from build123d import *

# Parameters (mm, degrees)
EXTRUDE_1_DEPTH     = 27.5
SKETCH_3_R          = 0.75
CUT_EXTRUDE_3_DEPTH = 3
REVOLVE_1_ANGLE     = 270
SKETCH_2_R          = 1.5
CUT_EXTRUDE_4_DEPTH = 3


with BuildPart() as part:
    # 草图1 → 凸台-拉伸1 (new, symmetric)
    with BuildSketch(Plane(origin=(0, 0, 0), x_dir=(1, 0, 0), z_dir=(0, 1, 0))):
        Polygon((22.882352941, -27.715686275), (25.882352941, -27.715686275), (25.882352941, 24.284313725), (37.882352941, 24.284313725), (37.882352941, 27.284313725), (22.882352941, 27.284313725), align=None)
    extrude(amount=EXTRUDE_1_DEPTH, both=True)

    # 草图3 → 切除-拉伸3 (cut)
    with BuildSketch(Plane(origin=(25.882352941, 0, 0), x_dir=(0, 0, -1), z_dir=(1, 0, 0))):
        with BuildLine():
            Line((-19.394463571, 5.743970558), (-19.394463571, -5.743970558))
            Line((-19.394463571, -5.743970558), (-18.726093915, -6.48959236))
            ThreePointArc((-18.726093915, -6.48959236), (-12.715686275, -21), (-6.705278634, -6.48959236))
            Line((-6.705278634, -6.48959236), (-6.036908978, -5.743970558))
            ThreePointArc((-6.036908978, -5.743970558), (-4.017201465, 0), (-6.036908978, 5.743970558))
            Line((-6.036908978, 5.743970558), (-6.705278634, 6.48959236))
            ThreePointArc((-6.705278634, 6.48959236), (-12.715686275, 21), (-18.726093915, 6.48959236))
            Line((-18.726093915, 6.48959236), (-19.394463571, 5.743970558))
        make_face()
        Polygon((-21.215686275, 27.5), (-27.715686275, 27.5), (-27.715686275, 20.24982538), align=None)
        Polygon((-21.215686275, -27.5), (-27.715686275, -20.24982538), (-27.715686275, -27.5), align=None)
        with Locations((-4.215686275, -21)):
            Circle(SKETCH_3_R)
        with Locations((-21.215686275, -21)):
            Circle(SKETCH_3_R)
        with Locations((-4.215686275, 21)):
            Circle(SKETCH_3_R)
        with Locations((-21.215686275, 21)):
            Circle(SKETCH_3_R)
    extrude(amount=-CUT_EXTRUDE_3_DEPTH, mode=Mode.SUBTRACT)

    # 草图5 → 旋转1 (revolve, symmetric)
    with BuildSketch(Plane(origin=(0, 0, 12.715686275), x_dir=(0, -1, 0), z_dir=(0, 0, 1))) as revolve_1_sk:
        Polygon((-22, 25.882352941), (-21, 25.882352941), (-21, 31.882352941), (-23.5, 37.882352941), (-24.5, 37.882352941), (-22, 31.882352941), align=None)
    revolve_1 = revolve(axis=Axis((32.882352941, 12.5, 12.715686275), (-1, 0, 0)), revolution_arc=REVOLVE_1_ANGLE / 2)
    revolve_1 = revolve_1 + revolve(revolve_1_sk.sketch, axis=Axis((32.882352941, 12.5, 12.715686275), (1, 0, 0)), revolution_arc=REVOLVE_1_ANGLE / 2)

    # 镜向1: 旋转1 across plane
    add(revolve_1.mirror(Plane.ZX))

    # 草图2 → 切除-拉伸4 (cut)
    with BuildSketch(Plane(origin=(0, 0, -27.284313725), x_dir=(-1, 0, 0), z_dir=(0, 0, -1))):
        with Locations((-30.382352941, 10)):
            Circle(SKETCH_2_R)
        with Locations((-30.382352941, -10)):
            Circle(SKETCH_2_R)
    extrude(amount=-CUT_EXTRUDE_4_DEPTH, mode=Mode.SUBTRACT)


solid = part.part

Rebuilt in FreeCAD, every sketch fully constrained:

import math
import FreeCAD as App
import Part
import Sketcher
from FreeCAD import Vector

doc = App.newDocument("Part")
body = doc.addObject("PartDesign::Body", "Body")

# Sketch on XZ plane
sketch1 = doc.addObject("Sketcher::SketchObject", "Sketch")
body.addObject(sketch1)
sketch1.AttachmentSupport = (doc.XZ_Plane, [""])
sketch1.MapMode = "FlatFace"
sketch1.addGeometry(Part.LineSegment(Vector(22.882353, 27.715686, 0), Vector(25.882353, 27.715686, 0)), False)
sketch1.addGeometry(Part.LineSegment(Vector(25.882353, 27.715686, 0), Vector(25.882353, -24.284314, 0)), False)
sketch1.addGeometry(Part.LineSegment(Vector(25.882353, -24.284314, 0), Vector(37.882353, -24.284314, 0)), False)
sketch1.addGeometry(Part.LineSegment(Vector(37.882353, -24.284314, 0), Vector(37.882353, -27.284314, 0)), False)
sketch1.addGeometry(Part.LineSegment(Vector(37.882353, -27.284314, 0), Vector(22.882353, -27.284314, 0)), False)
sketch1.addGeometry(Part.LineSegment(Vector(22.882353, -27.284314, 0), Vector(22.882353, 27.715686, 0)), False)
sketch1.addConstraint(Sketcher.Constraint("Coincident", 0, 2, 1, 1))
sketch1.addConstraint(Sketcher.Constraint("Coincident", 1, 2, 2, 1))
sketch1.addConstraint(Sketcher.Constraint("Coincident", 2, 2, 3, 1))
sketch1.addConstraint(Sketcher.Constraint("Coincident", 3, 2, 4, 1))
sketch1.addConstraint(Sketcher.Constraint("Coincident", 4, 2, 5, 1))
sketch1.addConstraint(Sketcher.Constraint("Coincident", 5, 2, 0, 1))
sketch1.addConstraint(Sketcher.Constraint("Horizontal", 0))
sketch1.addConstraint(Sketcher.Constraint("Vertical", 1))
sketch1.addConstraint(Sketcher.Constraint("Horizontal", 2))
sketch1.addConstraint(Sketcher.Constraint("Vertical", 3))
sketch1.addConstraint(Sketcher.Constraint("Horizontal", 4))
sketch1.addConstraint(Sketcher.Constraint("Vertical", 5))
sketch1.addConstraint(Sketcher.Constraint("Equal", 0, 3))
sketch1.addConstraint(Sketcher.Constraint("DistanceX", 0, 1, 0, 2, 3.0))
sketch1.addConstraint(Sketcher.Constraint("DistanceX", 2, 1, 2, 2, 12.0))
sketch1.addConstraint(Sketcher.Constraint("DistanceY", 1, 2, 1, 1, 52.0))
sketch1.addConstraint(Sketcher.Constraint("DistanceX", -1, 1, 0, 2, 25.882353))
sketch1.addConstraint(Sketcher.Constraint("DistanceY", -1, 1, 0, 2, 27.715686))
pad1 = doc.addObject("PartDesign::Pad", "Pad")
body.addObject(pad1)
pad1.Profile = sketch1
pad1.Length = 55
pad1.Midplane = True

# Sketch on YZ plane
sketch2 = doc.addObject("Sketcher::SketchObject", "Sketch001")
body.addObject(sketch2)
sketch2.AttachmentSupport = (doc.YZ_Plane, [""])
sketch2.MapMode = "FlatFace"
sketch2.AttachmentOffset = App.Placement(Vector(0, 0, 25.882353), App.Rotation())
sketch2.addGeometry(Part.LineSegment(Vector(5.743971, 19.394464, 0), Vector(-5.743971, 19.394464, 0)), False)
sketch2.addGeometry(Part.LineSegment(Vector(-5.743971, 19.394464, 0), Vector(-6.489592, 18.726094, 0)), False)
sketch2.addGeometry(Part.ArcOfCircle(Part.Circle(Vector(-12.5, 12.715686, 0), Vector(0, 0, 1), 8.5), math.radians(45), math.radians(315)), False)
sketch2.addGeometry(Part.LineSegment(Vector(-6.489592, 6.705279, 0), Vector(-5.743971, 6.036909, 0)), False)
sketch2.addGeometry(Part.ArcOfCircle(Part.Circle(Vector(0, 13.194871, 0), Vector(0, 0, 1), 9.17767), math.radians(-128.745612), math.radians(-51.254388)), False)
sketch2.addGeometry(Part.LineSegment(Vector(5.743971, 6.036909, 0), Vector(6.489592, 6.705279, 0)), False)
sketch2.addGeometry(Part.ArcOfCircle(Part.Circle(Vector(12.5, 12.715686, 0), Vector(0, 0, 1), 8.5), math.radians(-135), math.radians(135)), False)
sketch2.addGeometry(Part.LineSegment(Vector(6.489592, 18.726094, 0), Vector(5.743971, 19.394464, 0)), False)
sketch2.addGeometry(Part.LineSegment(Vector(27.5, 21.215686, 0), Vector(27.5, 27.715686, 0)), False)
sketch2.addGeometry(Part.LineSegment(Vector(27.5, 27.715686, 0), Vector(20.249825, 27.715686, 0)), False)
sketch2.addGeometry(Part.LineSegment(Vector(20.249825, 27.715686, 0), Vector(27.5, 21.215686, 0)), False)
sketch2.addGeometry(Part.LineSegment(Vector(-27.5, 21.215686, 0), Vector(-20.249825, 27.715686, 0)), False)
sketch2.addGeometry(Part.LineSegment(Vector(-20.249825, 27.715686, 0), Vector(-27.5, 27.715686, 0)), False)
sketch2.addGeometry(Part.LineSegment(Vector(-27.5, 27.715686, 0), Vector(-27.5, 21.215686, 0)), False)
sketch2.addGeometry(Part.Circle(Vector(-21, 4.215686, 0), Vector(0, 0, 1), 0.75), False)
sketch2.addGeometry(Part.Circle(Vector(-21, 21.215686, 0), Vector(0, 0, 1), 0.75), False)
sketch2.addGeometry(Part.Circle(Vector(21, 4.215686, 0), Vector(0, 0, 1), 0.75), False)
sketch2.addGeometry(Part.Circle(Vector(21, 21.215686, 0), Vector(0, 0, 1), 0.75), False)
sketch2.addConstraint(Sketcher.Constraint("Coincident", 0, 2, 1, 1))
sketch2.addConstraint(Sketcher.Constraint("Coincident", 1, 2, 2, 1))
sketch2.addConstraint(Sketcher.Constraint("Coincident", 2, 2, 3, 1))
sketch2.addConstraint(Sketcher.Constraint("Coincident", 3, 2, 4, 1))
sketch2.addConstraint(Sketcher.Constraint("Coincident", 4, 2, 5, 1))
sketch2.addConstraint(Sketcher.Constraint("Coincident", 5, 2, 6, 1))
sketch2.addConstraint(Sketcher.Constraint("Coincident", 6, 2, 7, 1))
sketch2.addConstraint(Sketcher.Constraint("Coincident", 7, 2, 0, 1))
sketch2.addConstraint(Sketcher.Constraint("Coincident", 8, 2, 9, 1))
sketch2.addConstraint(Sketcher.Constraint("Coincident", 9, 2, 10, 1))
sketch2.addConstraint(Sketcher.Constraint("Coincident", 10, 2, 8, 1))
sketch2.addConstraint(Sketcher.Constraint("Coincident", 11, 2, 12, 1))
sketch2.addConstraint(Sketcher.Constraint("Coincident", 12, 2, 13, 1))
sketch2.addConstraint(Sketcher.Constraint("Coincident", 13, 2, 11, 1))
sketch2.addConstraint(Sketcher.Constraint("Horizontal", 0))
sketch2.addConstraint(Sketcher.Constraint("Vertical", 8))
sketch2.addConstraint(Sketcher.Constraint("Horizontal", 9))
sketch2.addConstraint(Sketcher.Constraint("Horizontal", 12))
sketch2.addConstraint(Sketcher.Constraint("Vertical", 13))
sketch2.addConstraint(Sketcher.Constraint("Equal", 2, 6))
sketch2.addConstraint(Sketcher.Constraint("Equal", 14, 15))
sketch2.addConstraint(Sketcher.Constraint("Equal", 15, 16))
sketch2.addConstraint(Sketcher.Constraint("Equal", 16, 17))
sketch2.addConstraint(Sketcher.Constraint("Symmetric", 2, 3, 6, 3, -2))
sketch2.addConstraint(Sketcher.Constraint("Symmetric", 14, 3, 16, 3, -2))
sketch2.addConstraint(Sketcher.Constraint("Symmetric", 15, 3, 17, 3, -2))
sketch2.addConstraint(Sketcher.Constraint("Symmetric", 3, 2, 4, 2, -2))
sketch2.addConstraint(Sketcher.Constraint("Symmetric", 9, 2, 11, 2, -2))
sketch2.addConstraint(Sketcher.Constraint("Symmetric", 10, 2, 13, 2, -2))
sketch2.addConstraint(Sketcher.Constraint("Parallel", 1, 5))
sketch2.addConstraint(Sketcher.Constraint("Parallel", 3, 7))
sketch2.addConstraint(Sketcher.Constraint("Horizontal", 2, 2, 5, 2))
sketch2.addConstraint(Sketcher.Constraint("Horizontal", 1, 2, 6, 2))
sketch2.addConstraint(Sketcher.Constraint("Horizontal", 17, 3, 10, 2))
sketch2.addConstraint(Sketcher.Constraint("Vertical", 14, 3, 15, 3))
sketch2.addConstraint(Sketcher.Constraint("Vertical", 1, 2, 2, 2))
sketch2.addConstraint(Sketcher.Constraint("Vertical", 0, 2, 3, 2))
sketch2.addConstraint(Sketcher.Constraint("Diameter", 14, 1.5))
sketch2.addConstraint(Sketcher.Constraint("Radius", 2, 8.5))
sketch2.addConstraint(Sketcher.Constraint("DistanceY", 8, 1, 8, 2, 6.5))
sketch2.addConstraint(Sketcher.Constraint("DistanceX", 14, 3, -1, 1, 21.0))
sketch2.addConstraint(Sketcher.Constraint("DistanceX", 2, 3, 6, 3, 25.0))
sketch2.addConstraint(Sketcher.Constraint("DistanceY", 14, 3, 15, 3, 17.0))
sketch2.addConstraint(Sketcher.Constraint("DistanceX", 6, 3, 8, 2, 15.0))
sketch2.addConstraint(Sketcher.Constraint("DistanceY", 6, 3, 8, 2, 15.0))
sketch2.addConstraint(Sketcher.Constraint("Radius", 4, 9.17767))
sketch2.addConstraint(Sketcher.Constraint("Distance", 10, 9.737301))
sketch2.addConstraint(Sketcher.Constraint("DistanceX", 0, 2, 0, 1, 11.487941))
sketch2.addConstraint(Sketcher.Constraint("DistanceY", -1, 1, 4, 3, 13.194871))
sketch2.addConstraint(Sketcher.Constraint("DistanceY", -1, 1, 2, 2, 6.705279))
sketch2.addConstraint(Sketcher.Constraint("DistanceX", 1, 2, 0, 2, 0.745622))
pocket1 = doc.addObject("PartDesign::Pocket", "Pocket")
body.addObject(pocket1)
pocket1.Profile = sketch2
pocket1.Length = 3

# Sketch on XY plane
sketch3 = doc.addObject("Sketcher::SketchObject", "Sketch002")
body.addObject(sketch3)
sketch3.AttachmentSupport = (doc.XY_Plane, [""])
sketch3.MapMode = "FlatFace"
sketch3.AttachmentOffset = App.Placement(Vector(0, 0, 12.715686), App.Rotation())
sketch3.addGeometry(Part.LineSegment(Vector(25.882353, 22, 0), Vector(25.882353, 21, 0)), False)
sketch3.addGeometry(Part.LineSegment(Vector(25.882353, 21, 0), Vector(31.882353, 21, 0)), False)
sketch3.addGeometry(Part.LineSegment(Vector(31.882353, 21, 0), Vector(37.882353, 23.5, 0)), False)
sketch3.addGeometry(Part.LineSegment(Vector(37.882353, 23.5, 0), Vector(37.882353, 24.5, 0)), False)
sketch3.addGeometry(Part.LineSegment(Vector(37.882353, 24.5, 0), Vector(31.882353, 22, 0)), False)
sketch3.addGeometry(Part.LineSegment(Vector(31.882353, 22, 0), Vector(25.882353, 22, 0)), False)
sketch3.addGeometry(Part.LineSegment(Vector(37.882353, 12.5, 0), Vector(25.882353, 12.5, 0)), True)  # axis
sketch3.addConstraint(Sketcher.Constraint("Coincident", 0, 2, 1, 1))
sketch3.addConstraint(Sketcher.Constraint("Coincident", 1, 2, 2, 1))
sketch3.addConstraint(Sketcher.Constraint("Coincident", 2, 2, 3, 1))
sketch3.addConstraint(Sketcher.Constraint("Coincident", 3, 2, 4, 1))
sketch3.addConstraint(Sketcher.Constraint("Coincident", 4, 2, 5, 1))
sketch3.addConstraint(Sketcher.Constraint("Coincident", 5, 2, 0, 1))
sketch3.addConstraint(Sketcher.Constraint("Vertical", 0))
sketch3.addConstraint(Sketcher.Constraint("Horizontal", 1))
sketch3.addConstraint(Sketcher.Constraint("Vertical", 3))
sketch3.addConstraint(Sketcher.Constraint("Horizontal", 5))
sketch3.addConstraint(Sketcher.Constraint("Horizontal", 6))
sketch3.addConstraint(Sketcher.Constraint("Parallel", 2, 4))
sketch3.addConstraint(Sketcher.Constraint("Vertical", 1, 2, 4, 2))
sketch3.addConstraint(Sketcher.Constraint("Vertical", 3, 2, 6, 1))
sketch3.addConstraint(Sketcher.Constraint("Vertical", 5, 2, 6, 2))
sketch3.addConstraint(Sketcher.Constraint("DistanceX", 1, 1, 1, 2, 6.0))
sketch3.addConstraint(Sketcher.Constraint("DistanceX", 6, 2, 6, 1, 12.0))
sketch3.addConstraint(Sketcher.Constraint("DistanceY", 0, 2, 0, 1, 1.0))
sketch3.addConstraint(Sketcher.Constraint("DistanceY", -1, 1, 0, 2, 21.0))
sketch3.addConstraint(Sketcher.Constraint("DistanceY", 6, 1, 2, 2, 11.0))
sketch3.addConstraint(Sketcher.Constraint("Distance", 2, 6.5))
sketch3.addConstraint(Sketcher.Constraint("DistanceX", -1, 1, 0, 2, 25.882353))
revolution = doc.addObject("PartDesign::Revolution", "Revolution")
body.addObject(revolution)
revolution.Profile = sketch3
revolution.ReferenceAxis = (sketch3, ["Axis0"])
revolution.Angle = 135

# Sketch on XY plane
sketch4 = doc.addObject("Sketcher::SketchObject", "Sketch003")
body.addObject(sketch4)
sketch4.AttachmentSupport = (doc.XY_Plane, [""])
sketch4.MapMode = "FlatFace"
sketch4.AttachmentOffset = App.Placement(Vector(0, 0, 12.715686), App.Rotation())
sketch4.addGeometry(Part.LineSegment(Vector(25.882353, 22, 0), Vector(25.882353, 21, 0)), False)
sketch4.addGeometry(Part.LineSegment(Vector(25.882353, 21, 0), Vector(31.882353, 21, 0)), False)
sketch4.addGeometry(Part.LineSegment(Vector(31.882353, 21, 0), Vector(37.882353, 23.5, 0)), False)
sketch4.addGeometry(Part.LineSegment(Vector(37.882353, 23.5, 0), Vector(37.882353, 24.5, 0)), False)
sketch4.addGeometry(Part.LineSegment(Vector(37.882353, 24.5, 0), Vector(31.882353, 22, 0)), False)
sketch4.addGeometry(Part.LineSegment(Vector(31.882353, 22, 0), Vector(25.882353, 22, 0)), False)
sketch4.addGeometry(Part.LineSegment(Vector(25.882353, 12.5, 0), Vector(37.882353, 12.5, 0)), True)  # axis
sketch4.addConstraint(Sketcher.Constraint("Coincident", 0, 2, 1, 1))
sketch4.addConstraint(Sketcher.Constraint("Coincident", 1, 2, 2, 1))
sketch4.addConstraint(Sketcher.Constraint("Coincident", 2, 2, 3, 1))
sketch4.addConstraint(Sketcher.Constraint("Coincident", 3, 2, 4, 1))
sketch4.addConstraint(Sketcher.Constraint("Coincident", 4, 2, 5, 1))
sketch4.addConstraint(Sketcher.Constraint("Coincident", 5, 2, 0, 1))
sketch4.addConstraint(Sketcher.Constraint("Vertical", 0))
sketch4.addConstraint(Sketcher.Constraint("Horizontal", 1))
sketch4.addConstraint(Sketcher.Constraint("Vertical", 3))
sketch4.addConstraint(Sketcher.Constraint("Horizontal", 5))
sketch4.addConstraint(Sketcher.Constraint("Horizontal", 6))
sketch4.addConstraint(Sketcher.Constraint("Parallel", 2, 4))
sketch4.addConstraint(Sketcher.Constraint("Vertical", 1, 2, 4, 2))
sketch4.addConstraint(Sketcher.Constraint("Vertical", 5, 2, 6, 1))
sketch4.addConstraint(Sketcher.Constraint("Vertical", 3, 2, 6, 2))
sketch4.addConstraint(Sketcher.Constraint("DistanceX", 1, 1, 1, 2, 6.0))
sketch4.addConstraint(Sketcher.Constraint("DistanceX", 6, 1, 6, 2, 12.0))
sketch4.addConstraint(Sketcher.Constraint("DistanceY", 0, 2, 0, 1, 1.0))
sketch4.addConstraint(Sketcher.Constraint("DistanceY", -1, 1, 0, 2, 21.0))
sketch4.addConstraint(Sketcher.Constraint("DistanceY", 6, 1, 2, 2, 11.0))
sketch4.addConstraint(Sketcher.Constraint("Distance", 2, 6.5))
sketch4.addConstraint(Sketcher.Constraint("DistanceX", -1, 1, 0, 2, 25.882353))
revolution2 = doc.addObject("PartDesign::Revolution", "Revolution001")
body.addObject(revolution2)
revolution2.Profile = sketch4
revolution2.ReferenceAxis = (sketch4, ["Axis0"])
revolution2.Angle = 135
doc.recompute()

mirrored = doc.addObject("PartDesign::Mirrored", "Mirrored")
body.addObject(mirrored)
mirrored.Originals = [revolution, revolution2]
mirrored.MirrorPlane = (doc.XZ_Plane, [""])
body.Tip = mirrored

# Sketch on XY plane
sketch5 = doc.addObject("Sketcher::SketchObject", "Sketch004")
body.addObject(sketch5)
sketch5.AttachmentSupport = (doc.XY_Plane, [""])
sketch5.MapMode = "FlatFace"
sketch5.AttachmentOffset = App.Placement(Vector(0, 0, -27.284314), App.Rotation())
sketch5.addGeometry(Part.Circle(Vector(30.382353, 10, 0), Vector(0, 0, 1), 1.5), False)
sketch5.addGeometry(Part.Circle(Vector(30.382353, -10, 0), Vector(0, 0, 1), 1.5), False)
sketch5.addConstraint(Sketcher.Constraint("Equal", 0, 1))
sketch5.addConstraint(Sketcher.Constraint("Symmetric", 0, 3, 1, 3, -1))
sketch5.addConstraint(Sketcher.Constraint("Diameter", 0, 3.0))
sketch5.addConstraint(Sketcher.Constraint("DistanceY", -1, 1, 0, 3, 10.0))
sketch5.addConstraint(Sketcher.Constraint("DistanceX", -1, 1, 0, 3, 30.382353))
pocket2 = doc.addObject("PartDesign::Pocket", "Pocket001")
body.addObject(pocket2)
pocket2.Profile = sketch5
pocket2.Length = 3
pocket2.Reversed = True

doc.recompute()
